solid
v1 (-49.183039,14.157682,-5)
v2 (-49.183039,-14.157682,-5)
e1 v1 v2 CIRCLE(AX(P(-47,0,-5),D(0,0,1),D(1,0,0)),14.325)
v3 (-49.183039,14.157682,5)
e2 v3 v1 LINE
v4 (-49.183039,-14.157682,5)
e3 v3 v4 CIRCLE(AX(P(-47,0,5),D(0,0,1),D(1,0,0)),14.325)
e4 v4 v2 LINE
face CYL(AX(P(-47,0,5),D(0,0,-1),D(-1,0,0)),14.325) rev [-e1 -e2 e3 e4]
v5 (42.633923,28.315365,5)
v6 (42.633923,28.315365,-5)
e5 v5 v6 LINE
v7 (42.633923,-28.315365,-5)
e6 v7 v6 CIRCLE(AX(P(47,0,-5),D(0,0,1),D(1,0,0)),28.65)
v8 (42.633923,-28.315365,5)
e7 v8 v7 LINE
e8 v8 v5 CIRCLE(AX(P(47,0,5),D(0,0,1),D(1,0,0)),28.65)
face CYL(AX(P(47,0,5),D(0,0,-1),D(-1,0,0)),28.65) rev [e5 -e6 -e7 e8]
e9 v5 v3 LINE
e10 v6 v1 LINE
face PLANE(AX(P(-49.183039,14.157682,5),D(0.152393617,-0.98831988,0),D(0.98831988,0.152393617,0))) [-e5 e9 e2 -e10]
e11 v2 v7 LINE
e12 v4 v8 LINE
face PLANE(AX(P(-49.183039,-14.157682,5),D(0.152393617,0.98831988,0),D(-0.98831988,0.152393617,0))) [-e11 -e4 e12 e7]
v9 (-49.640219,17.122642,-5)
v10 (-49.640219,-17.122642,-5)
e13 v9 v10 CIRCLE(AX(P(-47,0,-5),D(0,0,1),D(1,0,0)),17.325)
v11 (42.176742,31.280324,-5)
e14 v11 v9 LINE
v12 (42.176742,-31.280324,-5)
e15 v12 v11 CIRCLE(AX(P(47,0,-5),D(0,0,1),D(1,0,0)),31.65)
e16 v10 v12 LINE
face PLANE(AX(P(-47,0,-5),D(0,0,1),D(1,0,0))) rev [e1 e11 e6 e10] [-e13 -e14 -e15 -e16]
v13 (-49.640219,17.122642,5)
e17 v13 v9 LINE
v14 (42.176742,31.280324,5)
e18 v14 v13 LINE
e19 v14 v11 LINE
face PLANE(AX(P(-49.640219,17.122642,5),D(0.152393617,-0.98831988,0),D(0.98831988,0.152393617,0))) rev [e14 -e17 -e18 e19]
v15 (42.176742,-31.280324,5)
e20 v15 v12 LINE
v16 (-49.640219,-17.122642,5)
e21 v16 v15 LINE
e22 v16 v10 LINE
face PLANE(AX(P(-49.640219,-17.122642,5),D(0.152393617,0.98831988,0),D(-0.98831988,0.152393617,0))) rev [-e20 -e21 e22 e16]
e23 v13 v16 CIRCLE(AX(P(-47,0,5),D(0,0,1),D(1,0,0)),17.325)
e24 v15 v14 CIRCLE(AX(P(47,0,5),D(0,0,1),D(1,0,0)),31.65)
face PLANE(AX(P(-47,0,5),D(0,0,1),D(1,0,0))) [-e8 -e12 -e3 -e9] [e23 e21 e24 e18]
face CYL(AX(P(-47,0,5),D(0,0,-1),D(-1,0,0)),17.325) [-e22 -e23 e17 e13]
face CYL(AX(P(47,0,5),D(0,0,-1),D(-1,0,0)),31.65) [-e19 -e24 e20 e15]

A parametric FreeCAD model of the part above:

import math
import FreeCAD as App
import Part
import Sketcher

V = App.Vector
Q = App.Units.Quantity

doc = App.newDocument("Part")
body = doc.addObject("PartDesign::Body", "Body")

# Sketch on XY plane
sketch1 = body.newObject("Sketcher::SketchObject", "Sketch")
sketch1.AttachmentSupport = (doc.getObject("XY_Plane"), [""])
sketch1.MapMode = "FlatFace"
sketch1.addGeometry([
    Part.LineSegment(V(42, 31, 0), V(-50, 17, 0)),  # 0
    Part.ArcOfCircle(Part.Circle(V(-47, 0, 0), V(0, 0, 1), 17), math.radians(99), math.radians(261)),  # 1
    Part.LineSegment(V(-50, -17, 0), V(42, -31, 0)),  # 2
    Part.ArcOfCircle(Part.Circle(V(47, 0, 0), V(0, 0, 1), 32), math.radians(-99), math.radians(99)),  # 3
    Part.LineSegment(V(-49, 14, 0), V(43, 28, 0)),  # 4
    Part.ArcOfCircle(Part.Circle(V(47, 0, 0), V(0, 0, 1), 29), math.radians(-99), math.radians(99)),  # 5
    Part.LineSegment(V(43, -28, 0), V(-49, -14, 0)),  # 6
    Part.ArcOfCircle(Part.Circle(V(-47, 0, 0), V(0, 0, 1), 14), math.radians(99), math.radians(261)),  # 7
], False)
sketch1.addConstraint([
    Sketcher.Constraint("Tangent", 0, 2, 1, 1),
    Sketcher.Constraint("Tangent", 1, 2, 2, 1),
    Sketcher.Constraint("Tangent", 2, 2, 3, 1),
    Sketcher.Constraint("Tangent", 3, 2, 0, 1),
    Sketcher.Constraint("Tangent", 4, 2, 5, 2),
    Sketcher.Constraint("Tangent", 5, 1, 6, 1),
    Sketcher.Constraint("Tangent", 6, 2, 7, 2),
    Sketcher.Constraint("Tangent", 7, 1, 4, 1),
    Sketcher.Constraint("Coincident", 5, 3, 3, 3),
    Sketcher.Constraint("Coincident", 7, 3, 1, 3),
    Sketcher.Constraint("Symmetric", 1, 3, 3, 3, -1, 1),
    Sketcher.Constraint("PointOnObject", 1, 3, -1),
    Sketcher.Constraint("Parallel", 0, 4),
    Sketcher.Constraint("Radius", 3, Q("31.65 mm")),
    Sketcher.Constraint("Radius", 5, Q("28.65 mm")),
    Sketcher.Constraint("DistanceX", 1, 3, -1, 1, Q("47 mm")),
    Sketcher.Constraint("Radius", 1, Q("17.325 mm")),
])
pad1 = body.newObject("PartDesign::Pad", "Pad")
pad1.Profile = sketch1
pad1.Length = 10
pad1.Midplane = True

doc.recompute()
